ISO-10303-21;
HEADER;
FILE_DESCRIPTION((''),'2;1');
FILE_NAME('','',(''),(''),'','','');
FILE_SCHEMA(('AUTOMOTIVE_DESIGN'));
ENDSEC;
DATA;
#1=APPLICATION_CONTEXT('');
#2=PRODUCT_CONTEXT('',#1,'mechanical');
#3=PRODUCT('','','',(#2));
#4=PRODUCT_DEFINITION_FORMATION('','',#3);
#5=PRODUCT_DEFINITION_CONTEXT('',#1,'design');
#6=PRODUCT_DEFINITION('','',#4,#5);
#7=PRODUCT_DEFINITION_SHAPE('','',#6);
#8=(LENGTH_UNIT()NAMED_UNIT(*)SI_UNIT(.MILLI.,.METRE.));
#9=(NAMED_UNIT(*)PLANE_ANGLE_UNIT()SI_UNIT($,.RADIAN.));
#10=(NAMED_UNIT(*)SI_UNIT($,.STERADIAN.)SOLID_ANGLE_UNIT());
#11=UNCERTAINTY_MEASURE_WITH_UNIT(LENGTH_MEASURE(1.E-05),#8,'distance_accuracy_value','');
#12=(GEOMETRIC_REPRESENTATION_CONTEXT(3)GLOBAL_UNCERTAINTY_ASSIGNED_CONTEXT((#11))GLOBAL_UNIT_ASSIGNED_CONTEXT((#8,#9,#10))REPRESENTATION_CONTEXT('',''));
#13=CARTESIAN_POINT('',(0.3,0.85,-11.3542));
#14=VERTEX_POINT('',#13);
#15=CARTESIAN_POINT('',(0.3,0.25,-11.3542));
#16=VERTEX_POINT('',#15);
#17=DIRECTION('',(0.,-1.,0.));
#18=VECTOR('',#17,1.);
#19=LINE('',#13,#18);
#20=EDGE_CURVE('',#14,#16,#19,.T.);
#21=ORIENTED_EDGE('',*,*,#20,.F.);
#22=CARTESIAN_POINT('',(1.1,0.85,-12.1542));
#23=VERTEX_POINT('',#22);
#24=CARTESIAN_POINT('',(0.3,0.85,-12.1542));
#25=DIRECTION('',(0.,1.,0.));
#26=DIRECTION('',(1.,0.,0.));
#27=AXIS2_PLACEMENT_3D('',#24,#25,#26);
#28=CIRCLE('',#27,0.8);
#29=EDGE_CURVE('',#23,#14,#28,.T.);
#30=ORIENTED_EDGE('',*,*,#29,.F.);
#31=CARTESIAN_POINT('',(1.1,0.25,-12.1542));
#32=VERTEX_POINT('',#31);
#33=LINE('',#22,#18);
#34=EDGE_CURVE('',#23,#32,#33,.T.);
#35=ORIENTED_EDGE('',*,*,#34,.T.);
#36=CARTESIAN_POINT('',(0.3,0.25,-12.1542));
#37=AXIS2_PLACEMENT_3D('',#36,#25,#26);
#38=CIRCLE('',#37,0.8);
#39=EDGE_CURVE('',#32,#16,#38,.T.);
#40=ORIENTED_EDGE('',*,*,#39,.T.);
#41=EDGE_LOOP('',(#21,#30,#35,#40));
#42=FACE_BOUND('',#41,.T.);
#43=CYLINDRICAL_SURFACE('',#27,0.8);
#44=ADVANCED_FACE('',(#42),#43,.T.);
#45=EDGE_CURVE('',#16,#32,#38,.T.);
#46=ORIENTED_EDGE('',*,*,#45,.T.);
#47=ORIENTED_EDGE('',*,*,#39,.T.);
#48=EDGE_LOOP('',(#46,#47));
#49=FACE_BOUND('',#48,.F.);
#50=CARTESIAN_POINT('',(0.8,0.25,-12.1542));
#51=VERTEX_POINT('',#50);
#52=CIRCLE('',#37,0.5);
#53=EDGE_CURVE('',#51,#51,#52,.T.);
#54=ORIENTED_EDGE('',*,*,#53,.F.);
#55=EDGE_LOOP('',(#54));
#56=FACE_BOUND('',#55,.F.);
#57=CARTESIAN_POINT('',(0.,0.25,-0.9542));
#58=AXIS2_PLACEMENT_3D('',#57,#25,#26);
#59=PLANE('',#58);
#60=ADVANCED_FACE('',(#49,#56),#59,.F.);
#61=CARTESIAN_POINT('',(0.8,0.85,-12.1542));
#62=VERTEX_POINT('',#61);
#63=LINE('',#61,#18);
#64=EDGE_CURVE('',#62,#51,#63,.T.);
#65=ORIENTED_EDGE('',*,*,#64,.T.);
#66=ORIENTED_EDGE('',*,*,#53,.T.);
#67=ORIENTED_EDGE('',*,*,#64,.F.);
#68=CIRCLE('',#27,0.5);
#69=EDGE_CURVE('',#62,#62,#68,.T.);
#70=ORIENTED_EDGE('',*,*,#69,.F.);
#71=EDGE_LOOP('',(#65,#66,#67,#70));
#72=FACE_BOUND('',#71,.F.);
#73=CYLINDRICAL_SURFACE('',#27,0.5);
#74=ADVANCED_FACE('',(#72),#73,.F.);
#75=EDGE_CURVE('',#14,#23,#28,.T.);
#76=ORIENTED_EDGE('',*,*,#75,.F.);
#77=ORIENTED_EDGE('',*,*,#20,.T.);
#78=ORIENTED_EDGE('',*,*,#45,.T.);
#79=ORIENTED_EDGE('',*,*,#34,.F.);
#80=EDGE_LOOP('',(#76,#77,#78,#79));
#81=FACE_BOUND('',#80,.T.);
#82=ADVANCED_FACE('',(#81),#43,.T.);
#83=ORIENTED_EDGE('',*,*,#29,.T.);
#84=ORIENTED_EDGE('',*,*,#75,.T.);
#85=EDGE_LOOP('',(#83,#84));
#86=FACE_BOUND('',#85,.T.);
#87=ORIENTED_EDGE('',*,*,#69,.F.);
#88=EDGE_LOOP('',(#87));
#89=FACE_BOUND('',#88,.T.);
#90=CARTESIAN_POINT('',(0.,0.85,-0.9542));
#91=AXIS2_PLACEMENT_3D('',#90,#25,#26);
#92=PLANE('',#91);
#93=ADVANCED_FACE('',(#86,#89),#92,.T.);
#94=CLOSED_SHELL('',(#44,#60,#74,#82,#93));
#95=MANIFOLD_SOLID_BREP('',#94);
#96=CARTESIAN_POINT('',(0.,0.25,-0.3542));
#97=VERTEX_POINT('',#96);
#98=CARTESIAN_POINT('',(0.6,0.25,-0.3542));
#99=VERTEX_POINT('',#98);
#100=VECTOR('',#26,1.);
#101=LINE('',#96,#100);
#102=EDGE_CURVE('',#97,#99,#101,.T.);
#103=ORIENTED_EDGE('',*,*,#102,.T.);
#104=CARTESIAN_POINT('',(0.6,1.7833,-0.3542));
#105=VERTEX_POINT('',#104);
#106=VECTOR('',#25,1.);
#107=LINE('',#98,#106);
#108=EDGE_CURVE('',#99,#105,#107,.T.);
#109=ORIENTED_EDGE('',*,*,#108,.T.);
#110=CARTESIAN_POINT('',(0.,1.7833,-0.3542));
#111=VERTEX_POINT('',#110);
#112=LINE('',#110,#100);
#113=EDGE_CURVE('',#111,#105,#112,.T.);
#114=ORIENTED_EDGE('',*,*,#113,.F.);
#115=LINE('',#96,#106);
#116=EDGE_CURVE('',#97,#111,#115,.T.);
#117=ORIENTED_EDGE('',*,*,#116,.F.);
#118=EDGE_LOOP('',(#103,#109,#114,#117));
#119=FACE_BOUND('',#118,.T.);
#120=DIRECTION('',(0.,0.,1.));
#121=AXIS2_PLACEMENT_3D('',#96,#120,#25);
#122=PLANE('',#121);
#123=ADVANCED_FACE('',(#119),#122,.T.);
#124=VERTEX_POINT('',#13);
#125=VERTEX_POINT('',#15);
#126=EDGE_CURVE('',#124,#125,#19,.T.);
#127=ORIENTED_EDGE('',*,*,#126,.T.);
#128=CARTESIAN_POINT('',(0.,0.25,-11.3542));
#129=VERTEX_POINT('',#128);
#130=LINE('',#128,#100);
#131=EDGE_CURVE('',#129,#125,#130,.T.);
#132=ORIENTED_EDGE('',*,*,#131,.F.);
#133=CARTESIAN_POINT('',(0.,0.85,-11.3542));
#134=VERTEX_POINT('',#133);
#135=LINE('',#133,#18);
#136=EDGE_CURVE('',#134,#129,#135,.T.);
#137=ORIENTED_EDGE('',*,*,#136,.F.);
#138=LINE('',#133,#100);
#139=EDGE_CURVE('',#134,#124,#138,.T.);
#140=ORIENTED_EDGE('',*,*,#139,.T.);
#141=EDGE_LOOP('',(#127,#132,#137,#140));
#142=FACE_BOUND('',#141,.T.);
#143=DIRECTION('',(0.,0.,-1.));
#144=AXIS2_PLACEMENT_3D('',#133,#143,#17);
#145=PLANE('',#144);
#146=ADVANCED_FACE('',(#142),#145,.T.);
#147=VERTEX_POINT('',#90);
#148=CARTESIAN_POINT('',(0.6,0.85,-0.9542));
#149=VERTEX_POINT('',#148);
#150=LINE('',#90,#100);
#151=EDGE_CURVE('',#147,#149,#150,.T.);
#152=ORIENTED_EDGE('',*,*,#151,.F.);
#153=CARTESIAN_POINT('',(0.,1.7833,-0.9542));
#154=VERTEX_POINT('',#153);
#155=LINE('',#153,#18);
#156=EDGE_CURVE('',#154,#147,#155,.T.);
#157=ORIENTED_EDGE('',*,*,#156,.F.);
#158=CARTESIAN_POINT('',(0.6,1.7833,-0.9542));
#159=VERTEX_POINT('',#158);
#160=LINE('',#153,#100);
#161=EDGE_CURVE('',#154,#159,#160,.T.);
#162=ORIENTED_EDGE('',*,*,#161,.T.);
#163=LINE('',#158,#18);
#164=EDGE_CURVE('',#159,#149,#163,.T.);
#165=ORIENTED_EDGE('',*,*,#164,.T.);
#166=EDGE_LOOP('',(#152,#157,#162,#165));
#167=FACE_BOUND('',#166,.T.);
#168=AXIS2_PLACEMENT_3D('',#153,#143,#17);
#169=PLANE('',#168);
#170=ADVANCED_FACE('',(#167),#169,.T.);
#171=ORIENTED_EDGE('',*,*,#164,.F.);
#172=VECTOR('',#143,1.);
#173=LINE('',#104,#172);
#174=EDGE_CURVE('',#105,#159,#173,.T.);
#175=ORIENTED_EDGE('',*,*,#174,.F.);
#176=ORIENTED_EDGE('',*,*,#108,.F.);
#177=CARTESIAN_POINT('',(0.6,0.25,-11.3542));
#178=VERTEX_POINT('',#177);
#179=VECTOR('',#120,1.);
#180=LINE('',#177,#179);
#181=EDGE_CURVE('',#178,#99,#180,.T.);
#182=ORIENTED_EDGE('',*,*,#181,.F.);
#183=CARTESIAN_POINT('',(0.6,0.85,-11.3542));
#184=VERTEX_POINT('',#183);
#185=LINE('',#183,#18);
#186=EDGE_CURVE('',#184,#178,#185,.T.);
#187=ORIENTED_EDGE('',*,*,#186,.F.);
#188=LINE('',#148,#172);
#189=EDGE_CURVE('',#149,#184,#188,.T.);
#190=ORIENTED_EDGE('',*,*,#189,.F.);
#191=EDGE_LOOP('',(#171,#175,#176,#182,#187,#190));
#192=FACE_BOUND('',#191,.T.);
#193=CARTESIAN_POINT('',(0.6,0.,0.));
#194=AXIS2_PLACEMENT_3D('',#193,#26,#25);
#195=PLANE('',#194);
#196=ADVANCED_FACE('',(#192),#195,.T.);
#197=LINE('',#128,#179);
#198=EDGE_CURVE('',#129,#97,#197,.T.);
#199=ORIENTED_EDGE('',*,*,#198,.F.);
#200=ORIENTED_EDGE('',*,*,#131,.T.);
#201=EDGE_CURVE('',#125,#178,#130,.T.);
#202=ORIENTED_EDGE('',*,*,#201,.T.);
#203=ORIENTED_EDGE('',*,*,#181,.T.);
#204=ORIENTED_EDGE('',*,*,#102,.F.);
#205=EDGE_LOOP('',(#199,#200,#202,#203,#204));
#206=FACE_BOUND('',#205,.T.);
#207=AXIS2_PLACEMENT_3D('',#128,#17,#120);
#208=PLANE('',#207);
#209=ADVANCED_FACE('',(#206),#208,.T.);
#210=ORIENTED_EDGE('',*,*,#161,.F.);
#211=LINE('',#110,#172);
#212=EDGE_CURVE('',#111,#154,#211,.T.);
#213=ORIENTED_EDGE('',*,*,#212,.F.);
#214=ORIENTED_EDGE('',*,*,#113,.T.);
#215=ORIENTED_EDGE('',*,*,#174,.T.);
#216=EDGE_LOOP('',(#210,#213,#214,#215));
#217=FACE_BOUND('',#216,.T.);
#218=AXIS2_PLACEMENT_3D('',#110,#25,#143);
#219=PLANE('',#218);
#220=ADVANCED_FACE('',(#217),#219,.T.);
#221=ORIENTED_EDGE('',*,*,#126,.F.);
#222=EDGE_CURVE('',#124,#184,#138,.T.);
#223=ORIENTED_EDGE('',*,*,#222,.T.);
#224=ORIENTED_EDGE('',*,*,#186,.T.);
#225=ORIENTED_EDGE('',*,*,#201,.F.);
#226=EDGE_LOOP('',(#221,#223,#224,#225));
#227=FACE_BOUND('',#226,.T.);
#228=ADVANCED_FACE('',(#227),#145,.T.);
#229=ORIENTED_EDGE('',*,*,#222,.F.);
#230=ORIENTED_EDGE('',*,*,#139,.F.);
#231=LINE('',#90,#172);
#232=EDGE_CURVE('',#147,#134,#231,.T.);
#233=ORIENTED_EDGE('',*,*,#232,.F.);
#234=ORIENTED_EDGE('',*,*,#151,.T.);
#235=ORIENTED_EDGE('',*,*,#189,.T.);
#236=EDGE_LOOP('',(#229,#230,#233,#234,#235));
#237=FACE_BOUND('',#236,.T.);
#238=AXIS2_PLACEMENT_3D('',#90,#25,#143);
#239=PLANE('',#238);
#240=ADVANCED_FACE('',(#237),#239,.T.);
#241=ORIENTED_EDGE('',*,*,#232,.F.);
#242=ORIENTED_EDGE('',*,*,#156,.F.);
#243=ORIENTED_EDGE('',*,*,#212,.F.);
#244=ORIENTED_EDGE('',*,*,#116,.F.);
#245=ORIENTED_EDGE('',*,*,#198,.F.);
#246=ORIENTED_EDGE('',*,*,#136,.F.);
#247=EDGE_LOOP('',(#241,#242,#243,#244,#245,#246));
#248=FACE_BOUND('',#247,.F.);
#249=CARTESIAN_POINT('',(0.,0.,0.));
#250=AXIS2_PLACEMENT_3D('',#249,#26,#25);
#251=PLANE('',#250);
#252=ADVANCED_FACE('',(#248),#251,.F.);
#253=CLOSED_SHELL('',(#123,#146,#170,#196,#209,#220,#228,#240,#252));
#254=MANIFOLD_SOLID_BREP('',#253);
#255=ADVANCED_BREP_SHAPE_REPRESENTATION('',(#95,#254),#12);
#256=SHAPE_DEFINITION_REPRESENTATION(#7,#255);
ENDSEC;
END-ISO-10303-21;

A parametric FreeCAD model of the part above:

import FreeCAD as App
import Part
import Sketcher
from FreeCAD import Vector


def add_polygon(sketch, points):
    """Adds a closed chain of lines whose ends are joined by coincident constraints."""
    first, n = sketch.GeometryCount, len(points)
    for a, b in zip(points, points[1:] + points[:1]):
        sketch.addGeometry(Part.LineSegment(App.Vector(*a, 0), App.Vector(*b, 0)), False)
    for i in range(n):
        sketch.addConstraint(Sketcher.Constraint("Coincident", first + i, 2, first + (i + 1) % n, 1))

doc = App.newDocument("Part")
params = doc.addObject("Spreadsheet::Sheet", "Params")
for row, (alias, value) in enumerate([
    ("sketch1_height", "11 mm"),
    ("sketch1_width", "0.6 mm"),
    ("pad1_length", "0.6 mm"),
    ("sketch2_diameter", "1.6 mm"),
    ("pad2_length", "0.6 mm"),
    ("sketch3_diameter", "1 mm"),
    ("pocket1_length", "0.6 mm"),
], start=1):
    params.set(f"A{row}", alias)
    params.set(f"B{row}", "=" + value)
    params.setAlias(f"B{row}", alias)

body = doc.addObject("PartDesign::Body", "Body")
body.AllowCompound = True

# Sketch on YZ plane
sketch1 = doc.addObject("Sketcher::SketchObject", "Sketch")
body.addObject(sketch1)
sketch1.AttachmentSupport = (doc.YZ_Plane, [""])
sketch1.MapMode = "FlatFace"
add_polygon(sketch1, [(0.8, -1), (1.8, -1), (1.8, -0.4), (0.2, -0.4), (0.2, -11.4), (0.8, -11.4)])  # lines 0-5
sketch1.addConstraint(Sketcher.Constraint("Horizontal", 0))
sketch1.addConstraint(Sketcher.Constraint("Vertical", 1))
sketch1.addConstraint(Sketcher.Constraint("Horizontal", 2))
sketch1.addConstraint(Sketcher.Constraint("Vertical", 3))
sketch1.addConstraint(Sketcher.Constraint("Horizontal", 4))
sketch1.addConstraint(Sketcher.Constraint("Vertical", 5))
sketch1.addConstraint(Sketcher.Constraint("Equal", 4, 1))
sketch1.addConstraint(Sketcher.Constraint("DistanceY", 3, 2, 3, 1, 11.0))
sketch1.addConstraint(Sketcher.Constraint("DistanceX", 4, 1, 4, 2, 0.6))
sketch1.addConstraint(Sketcher.Constraint("DistanceX", -1, 1, 2, 2, 0.25))
sketch1.addConstraint(Sketcher.Constraint("DistanceX", 0, 1, 0, 2, 0.9333))
sketch1.addConstraint(Sketcher.Constraint("DistanceY", 0, 2, -1, 1, 0.9542))
sketch1.setExpression("Constraints[13]", "Params.sketch1_height")
sketch1.setExpression("Constraints[14]", "Params.sketch1_width")
pad1 = doc.addObject("PartDesign::Pad", "Pad")
body.addObject(pad1)
pad1.Profile = sketch1
pad1.setExpression("Length", "Params.pad1_length")

# Sketch on XZ plane
sketch2 = doc.addObject("Sketcher::SketchObject", "Sketch001")
body.addObject(sketch2)
sketch2.AttachmentSupport = (doc.XZ_Plane, [""])
sketch2.MapMode = "FlatFace"
sketch2.AttachmentOffset = App.Placement(Vector(0, 0, -0.85), App.Rotation())
sketch2.addGeometry(Part.Circle(Vector(0.3, -12.2, 0), Vector(0, 0, 1), 0.8), False)
sketch2.addConstraint(Sketcher.Constraint("Diameter", 0, 1.6))
sketch2.addConstraint(Sketcher.Constraint("DistanceX", -1, 1, 0, 3, 0.3))
sketch2.addConstraint(Sketcher.Constraint("DistanceY", 0, 3, -1, 1, 12.1542))
sketch2.setExpression("Constraints[0]", "Params.sketch2_diameter")
pad2 = doc.addObject("PartDesign::Pad", "Pad001")
body.addObject(pad2)
pad2.Profile = sketch2
pad2.setExpression("Length", "Params.pad2_length")

# Sketch on XZ plane
sketch3 = doc.addObject("Sketcher::SketchObject", "Sketch002")
body.addObject(sketch3)
sketch3.AttachmentSupport = (doc.XZ_Plane, [""])
sketch3.MapMode = "FlatFace"
sketch3.AttachmentOffset = App.Placement(Vector(0, 0, -0.85), App.Rotation())
sketch3.addGeometry(Part.Circle(Vector(0.3, -12.2, 0), Vector(0, 0, 1), 0.5), False)
sketch3.addConstraint(Sketcher.Constraint("Diameter", 0, 1.0))
sketch3.addConstraint(Sketcher.Constraint("DistanceX", -1, 1, 0, 3, 0.3))
sketch3.addConstraint(Sketcher.Constraint("DistanceY", 0, 3, -1, 1, 12.1542))
sketch3.setExpression("Constraints[0]", "Params.sketch3_diameter")
pocket1 = doc.addObject("PartDesign::Pocket", "Pocket")
body.addObject(pocket1)
pocket1.Profile = sketch3
pocket1.setExpression("Length", "Params.pocket1_length")
pocket1.Reversed = True

doc.recompute()
